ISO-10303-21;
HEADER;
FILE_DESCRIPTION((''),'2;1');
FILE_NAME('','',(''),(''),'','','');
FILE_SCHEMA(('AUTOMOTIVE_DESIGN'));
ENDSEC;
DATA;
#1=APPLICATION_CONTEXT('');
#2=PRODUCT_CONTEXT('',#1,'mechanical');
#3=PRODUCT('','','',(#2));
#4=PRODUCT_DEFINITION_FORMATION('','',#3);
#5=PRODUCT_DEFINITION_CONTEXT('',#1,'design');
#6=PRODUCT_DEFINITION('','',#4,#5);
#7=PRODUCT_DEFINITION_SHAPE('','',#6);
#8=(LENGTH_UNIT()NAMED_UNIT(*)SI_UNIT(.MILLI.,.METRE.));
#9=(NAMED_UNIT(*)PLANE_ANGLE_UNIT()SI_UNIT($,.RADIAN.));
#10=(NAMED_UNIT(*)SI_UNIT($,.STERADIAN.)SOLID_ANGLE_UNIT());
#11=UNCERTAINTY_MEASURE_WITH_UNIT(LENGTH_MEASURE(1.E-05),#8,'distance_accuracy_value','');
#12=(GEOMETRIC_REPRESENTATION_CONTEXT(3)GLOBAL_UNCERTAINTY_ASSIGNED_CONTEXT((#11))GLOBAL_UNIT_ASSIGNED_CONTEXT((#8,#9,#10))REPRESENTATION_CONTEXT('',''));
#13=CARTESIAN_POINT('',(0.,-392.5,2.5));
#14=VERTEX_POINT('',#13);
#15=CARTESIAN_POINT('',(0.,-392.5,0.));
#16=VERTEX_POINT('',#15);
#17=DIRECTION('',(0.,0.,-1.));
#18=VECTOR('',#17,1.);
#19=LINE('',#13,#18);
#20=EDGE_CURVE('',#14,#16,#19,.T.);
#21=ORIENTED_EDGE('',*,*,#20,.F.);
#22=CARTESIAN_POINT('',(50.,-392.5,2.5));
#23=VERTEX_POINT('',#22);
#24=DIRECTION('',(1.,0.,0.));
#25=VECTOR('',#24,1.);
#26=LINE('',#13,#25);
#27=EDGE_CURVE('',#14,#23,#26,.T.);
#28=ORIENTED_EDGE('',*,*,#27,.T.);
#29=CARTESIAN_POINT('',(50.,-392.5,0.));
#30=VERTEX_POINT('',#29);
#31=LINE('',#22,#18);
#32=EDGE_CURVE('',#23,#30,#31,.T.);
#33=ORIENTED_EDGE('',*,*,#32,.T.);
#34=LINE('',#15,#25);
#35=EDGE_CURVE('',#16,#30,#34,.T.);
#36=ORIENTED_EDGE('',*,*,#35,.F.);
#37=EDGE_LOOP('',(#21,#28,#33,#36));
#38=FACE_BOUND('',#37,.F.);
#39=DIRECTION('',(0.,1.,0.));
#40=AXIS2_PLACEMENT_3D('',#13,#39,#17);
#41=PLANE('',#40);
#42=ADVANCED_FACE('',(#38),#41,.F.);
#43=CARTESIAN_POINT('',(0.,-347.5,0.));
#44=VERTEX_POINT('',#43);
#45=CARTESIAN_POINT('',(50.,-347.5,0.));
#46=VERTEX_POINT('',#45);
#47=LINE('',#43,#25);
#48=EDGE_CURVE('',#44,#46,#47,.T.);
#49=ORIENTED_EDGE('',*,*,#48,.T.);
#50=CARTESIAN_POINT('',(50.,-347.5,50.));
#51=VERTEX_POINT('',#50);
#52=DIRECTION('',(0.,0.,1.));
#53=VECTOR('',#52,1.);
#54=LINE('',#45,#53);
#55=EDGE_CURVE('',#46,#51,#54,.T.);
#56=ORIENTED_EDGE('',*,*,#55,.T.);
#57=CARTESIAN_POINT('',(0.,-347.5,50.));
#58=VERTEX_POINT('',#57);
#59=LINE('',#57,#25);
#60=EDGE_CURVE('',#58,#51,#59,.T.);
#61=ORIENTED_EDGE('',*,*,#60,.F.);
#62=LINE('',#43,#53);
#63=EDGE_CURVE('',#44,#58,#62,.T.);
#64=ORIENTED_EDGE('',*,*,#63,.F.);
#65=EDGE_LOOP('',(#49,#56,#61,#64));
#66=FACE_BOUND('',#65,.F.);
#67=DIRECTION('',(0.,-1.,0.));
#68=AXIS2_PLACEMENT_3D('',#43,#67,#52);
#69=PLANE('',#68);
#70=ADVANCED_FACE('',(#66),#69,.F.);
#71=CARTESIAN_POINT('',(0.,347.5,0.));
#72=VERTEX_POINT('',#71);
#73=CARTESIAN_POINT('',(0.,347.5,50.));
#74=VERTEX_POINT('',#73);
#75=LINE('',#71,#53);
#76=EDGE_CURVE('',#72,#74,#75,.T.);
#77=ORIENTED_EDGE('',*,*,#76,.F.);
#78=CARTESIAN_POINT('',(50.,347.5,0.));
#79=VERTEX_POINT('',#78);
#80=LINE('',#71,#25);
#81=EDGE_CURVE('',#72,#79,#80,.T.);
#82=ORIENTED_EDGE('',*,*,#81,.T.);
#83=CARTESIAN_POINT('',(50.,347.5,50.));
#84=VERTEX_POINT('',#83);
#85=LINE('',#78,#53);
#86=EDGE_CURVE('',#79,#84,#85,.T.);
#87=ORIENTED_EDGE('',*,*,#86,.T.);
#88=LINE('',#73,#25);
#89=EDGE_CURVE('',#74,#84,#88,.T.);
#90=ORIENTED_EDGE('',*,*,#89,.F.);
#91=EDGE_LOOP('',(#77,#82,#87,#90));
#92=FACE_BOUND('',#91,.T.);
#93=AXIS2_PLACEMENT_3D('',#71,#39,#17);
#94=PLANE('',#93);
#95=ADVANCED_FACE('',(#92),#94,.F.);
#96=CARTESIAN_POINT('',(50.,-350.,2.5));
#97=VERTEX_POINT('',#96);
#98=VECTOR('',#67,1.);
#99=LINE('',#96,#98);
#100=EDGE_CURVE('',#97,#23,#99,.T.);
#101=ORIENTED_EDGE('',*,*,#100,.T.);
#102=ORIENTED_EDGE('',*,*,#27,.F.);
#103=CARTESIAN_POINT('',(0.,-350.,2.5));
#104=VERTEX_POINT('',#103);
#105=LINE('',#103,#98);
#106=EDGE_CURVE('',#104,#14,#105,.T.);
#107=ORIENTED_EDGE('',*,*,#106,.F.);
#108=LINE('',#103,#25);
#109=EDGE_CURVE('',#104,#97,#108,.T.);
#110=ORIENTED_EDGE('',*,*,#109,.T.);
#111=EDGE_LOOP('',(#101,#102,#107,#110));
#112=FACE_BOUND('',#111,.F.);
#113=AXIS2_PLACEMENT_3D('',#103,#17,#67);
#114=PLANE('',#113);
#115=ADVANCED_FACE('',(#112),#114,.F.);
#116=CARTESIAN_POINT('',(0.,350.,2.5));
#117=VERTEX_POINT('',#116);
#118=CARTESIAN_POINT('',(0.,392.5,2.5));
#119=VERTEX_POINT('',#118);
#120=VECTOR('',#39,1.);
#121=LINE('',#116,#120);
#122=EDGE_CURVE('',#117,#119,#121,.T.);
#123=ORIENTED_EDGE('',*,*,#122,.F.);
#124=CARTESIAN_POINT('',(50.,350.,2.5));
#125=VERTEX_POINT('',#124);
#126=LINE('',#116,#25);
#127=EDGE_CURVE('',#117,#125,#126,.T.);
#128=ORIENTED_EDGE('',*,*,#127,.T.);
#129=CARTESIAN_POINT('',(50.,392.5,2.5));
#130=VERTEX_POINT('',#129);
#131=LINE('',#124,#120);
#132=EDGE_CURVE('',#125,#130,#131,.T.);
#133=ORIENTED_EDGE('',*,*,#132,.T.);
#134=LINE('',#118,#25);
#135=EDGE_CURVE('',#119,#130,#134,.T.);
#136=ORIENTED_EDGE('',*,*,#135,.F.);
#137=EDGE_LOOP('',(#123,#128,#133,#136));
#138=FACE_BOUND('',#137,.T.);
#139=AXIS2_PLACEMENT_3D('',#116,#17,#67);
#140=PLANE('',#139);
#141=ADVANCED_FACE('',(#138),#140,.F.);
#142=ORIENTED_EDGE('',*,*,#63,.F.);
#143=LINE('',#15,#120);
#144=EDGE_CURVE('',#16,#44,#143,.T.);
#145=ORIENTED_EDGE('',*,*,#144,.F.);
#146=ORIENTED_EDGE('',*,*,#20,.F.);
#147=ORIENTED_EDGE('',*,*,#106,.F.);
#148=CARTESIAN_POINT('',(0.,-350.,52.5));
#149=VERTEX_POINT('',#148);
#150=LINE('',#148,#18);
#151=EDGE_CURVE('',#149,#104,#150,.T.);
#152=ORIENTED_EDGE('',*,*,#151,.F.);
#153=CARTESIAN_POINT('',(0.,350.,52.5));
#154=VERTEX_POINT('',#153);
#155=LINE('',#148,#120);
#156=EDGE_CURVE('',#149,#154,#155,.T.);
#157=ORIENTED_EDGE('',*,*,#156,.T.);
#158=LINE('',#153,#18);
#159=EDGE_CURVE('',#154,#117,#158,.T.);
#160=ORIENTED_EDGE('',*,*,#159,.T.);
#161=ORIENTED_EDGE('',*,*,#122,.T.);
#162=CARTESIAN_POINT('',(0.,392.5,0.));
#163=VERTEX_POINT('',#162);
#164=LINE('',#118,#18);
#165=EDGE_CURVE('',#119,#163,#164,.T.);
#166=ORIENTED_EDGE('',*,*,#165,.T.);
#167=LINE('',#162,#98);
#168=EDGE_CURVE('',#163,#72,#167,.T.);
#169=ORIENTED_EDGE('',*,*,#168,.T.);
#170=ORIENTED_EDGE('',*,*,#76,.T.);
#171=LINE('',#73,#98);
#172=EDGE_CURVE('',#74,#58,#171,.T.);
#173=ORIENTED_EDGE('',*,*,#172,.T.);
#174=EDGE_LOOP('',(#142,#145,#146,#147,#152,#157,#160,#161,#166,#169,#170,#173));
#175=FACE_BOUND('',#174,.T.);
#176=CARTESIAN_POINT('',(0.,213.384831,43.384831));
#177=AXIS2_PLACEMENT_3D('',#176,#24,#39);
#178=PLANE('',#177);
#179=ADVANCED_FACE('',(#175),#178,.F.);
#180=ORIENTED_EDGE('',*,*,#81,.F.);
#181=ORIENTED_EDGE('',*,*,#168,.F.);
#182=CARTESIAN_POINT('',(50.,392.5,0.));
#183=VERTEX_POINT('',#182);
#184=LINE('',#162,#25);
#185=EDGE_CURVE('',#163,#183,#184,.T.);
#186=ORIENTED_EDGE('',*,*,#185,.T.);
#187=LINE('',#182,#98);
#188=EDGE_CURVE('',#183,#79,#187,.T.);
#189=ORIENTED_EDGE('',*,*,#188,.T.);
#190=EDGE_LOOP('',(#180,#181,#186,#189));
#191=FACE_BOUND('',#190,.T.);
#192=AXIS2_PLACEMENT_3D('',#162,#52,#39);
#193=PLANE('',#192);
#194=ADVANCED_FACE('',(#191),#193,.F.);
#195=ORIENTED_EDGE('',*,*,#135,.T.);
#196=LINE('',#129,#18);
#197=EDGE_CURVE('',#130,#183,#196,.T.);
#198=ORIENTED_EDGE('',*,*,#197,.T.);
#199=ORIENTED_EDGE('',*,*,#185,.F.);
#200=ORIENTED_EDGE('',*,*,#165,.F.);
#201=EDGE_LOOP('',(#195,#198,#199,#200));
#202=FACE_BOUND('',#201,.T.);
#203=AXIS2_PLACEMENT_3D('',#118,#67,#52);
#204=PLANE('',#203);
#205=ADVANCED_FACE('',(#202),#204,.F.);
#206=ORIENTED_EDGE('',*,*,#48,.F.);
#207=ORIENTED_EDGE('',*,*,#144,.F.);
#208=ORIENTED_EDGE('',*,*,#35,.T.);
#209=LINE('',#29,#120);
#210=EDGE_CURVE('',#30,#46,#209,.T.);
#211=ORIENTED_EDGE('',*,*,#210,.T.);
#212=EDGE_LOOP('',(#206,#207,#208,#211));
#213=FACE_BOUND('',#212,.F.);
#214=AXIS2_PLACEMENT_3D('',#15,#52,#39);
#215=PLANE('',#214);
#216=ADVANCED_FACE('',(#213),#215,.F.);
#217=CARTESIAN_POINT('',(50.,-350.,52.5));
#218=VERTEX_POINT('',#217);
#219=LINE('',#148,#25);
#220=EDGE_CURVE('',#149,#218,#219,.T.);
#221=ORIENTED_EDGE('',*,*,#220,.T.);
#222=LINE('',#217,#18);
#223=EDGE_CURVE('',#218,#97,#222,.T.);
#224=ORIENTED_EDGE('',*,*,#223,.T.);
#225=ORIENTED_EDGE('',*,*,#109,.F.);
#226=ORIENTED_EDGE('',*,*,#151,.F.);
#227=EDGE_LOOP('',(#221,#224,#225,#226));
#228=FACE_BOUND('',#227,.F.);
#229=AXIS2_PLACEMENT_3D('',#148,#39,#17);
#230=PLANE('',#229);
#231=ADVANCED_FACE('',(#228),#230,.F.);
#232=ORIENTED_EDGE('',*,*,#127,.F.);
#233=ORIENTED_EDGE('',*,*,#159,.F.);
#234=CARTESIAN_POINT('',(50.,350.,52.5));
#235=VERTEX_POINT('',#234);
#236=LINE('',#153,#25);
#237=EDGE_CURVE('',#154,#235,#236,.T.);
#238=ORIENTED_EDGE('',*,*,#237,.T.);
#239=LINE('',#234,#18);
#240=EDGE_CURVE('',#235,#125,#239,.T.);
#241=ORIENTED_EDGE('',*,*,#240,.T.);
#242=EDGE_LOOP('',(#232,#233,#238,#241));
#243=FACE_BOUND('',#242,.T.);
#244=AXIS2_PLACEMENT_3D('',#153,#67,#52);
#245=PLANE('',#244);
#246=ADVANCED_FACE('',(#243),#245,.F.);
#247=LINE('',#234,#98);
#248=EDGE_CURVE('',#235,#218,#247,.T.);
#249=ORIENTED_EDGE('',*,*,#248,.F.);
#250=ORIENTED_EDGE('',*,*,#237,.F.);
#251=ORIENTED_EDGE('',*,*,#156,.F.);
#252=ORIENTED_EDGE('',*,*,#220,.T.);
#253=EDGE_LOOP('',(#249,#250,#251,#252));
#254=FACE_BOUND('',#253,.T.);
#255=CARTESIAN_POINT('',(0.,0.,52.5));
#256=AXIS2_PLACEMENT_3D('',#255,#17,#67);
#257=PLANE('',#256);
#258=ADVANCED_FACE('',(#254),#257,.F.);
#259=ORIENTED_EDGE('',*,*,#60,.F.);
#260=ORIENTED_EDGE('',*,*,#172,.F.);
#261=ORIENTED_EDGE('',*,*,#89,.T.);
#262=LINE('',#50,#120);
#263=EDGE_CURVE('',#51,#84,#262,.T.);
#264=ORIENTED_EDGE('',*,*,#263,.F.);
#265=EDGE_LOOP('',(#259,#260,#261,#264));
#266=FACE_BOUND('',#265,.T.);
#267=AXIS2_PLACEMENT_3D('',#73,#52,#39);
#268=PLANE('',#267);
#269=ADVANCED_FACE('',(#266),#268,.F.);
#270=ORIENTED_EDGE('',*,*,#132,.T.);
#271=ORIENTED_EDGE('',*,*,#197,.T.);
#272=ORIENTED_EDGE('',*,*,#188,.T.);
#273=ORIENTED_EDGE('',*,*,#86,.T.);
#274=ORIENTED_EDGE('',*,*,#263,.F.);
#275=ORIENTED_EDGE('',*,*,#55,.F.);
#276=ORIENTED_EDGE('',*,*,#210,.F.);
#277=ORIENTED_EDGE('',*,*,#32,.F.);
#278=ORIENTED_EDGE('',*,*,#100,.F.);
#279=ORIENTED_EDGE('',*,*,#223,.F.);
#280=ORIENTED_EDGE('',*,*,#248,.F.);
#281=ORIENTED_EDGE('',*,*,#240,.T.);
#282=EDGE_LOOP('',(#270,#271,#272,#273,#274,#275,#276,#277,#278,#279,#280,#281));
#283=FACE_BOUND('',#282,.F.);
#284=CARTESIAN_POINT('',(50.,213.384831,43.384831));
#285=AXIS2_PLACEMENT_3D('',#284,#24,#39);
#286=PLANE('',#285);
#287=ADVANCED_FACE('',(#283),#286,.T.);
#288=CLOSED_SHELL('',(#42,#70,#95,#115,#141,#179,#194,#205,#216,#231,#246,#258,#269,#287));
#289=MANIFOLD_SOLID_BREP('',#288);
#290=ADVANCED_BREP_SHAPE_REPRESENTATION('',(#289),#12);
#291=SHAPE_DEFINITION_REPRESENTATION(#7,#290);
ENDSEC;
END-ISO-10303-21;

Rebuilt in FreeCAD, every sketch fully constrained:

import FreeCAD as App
import Part
import Sketcher

doc = App.newDocument("Part")
body = doc.addObject("PartDesign::Body", "Body")

# Sketch on YZ plane
sketch1 = body.newObject("Sketcher::SketchObject", "Sketch")
sketch1.AttachmentSupport = (doc.getObject("YZ_Plane"), [""])
sketch1.MapMode = "FlatFace"
sketch1.addGeometry(Part.LineSegment(App.Vector(-392.5, 2.5, 0), App.Vector(-392.5, 0, 0)), False)
sketch1.addGeometry(Part.LineSegment(App.Vector(-392.5, 0, 0), App.Vector(-347.5, 0, 0)), False)
sketch1.addGeometry(Part.LineSegment(App.Vector(-347.5, 0, 0), App.Vector(-347.5, 50, 0)), False)
sketch1.addGeometry(Part.LineSegment(App.Vector(-347.5, 50, 0), App.Vector(0, 50, 0)), False)
sketch1.addGeometry(Part.LineSegment(App.Vector(0, 50, 0), App.Vector(0, 52.5, 0)), False)
sketch1.addGeometry(Part.LineSegment(App.Vector(0, 52.5, 0), App.Vector(-350, 52.5, 0)), False)
sketch1.addGeometry(Part.LineSegment(App.Vector(-350, 52.5, 0), App.Vector(-350, 2.5, 0)), False)
sketch1.addGeometry(Part.LineSegment(App.Vector(-350, 2.5, 0), App.Vector(-392.5, 2.5, 0)), False)
sketch1.addConstraint(Sketcher.Constraint("Coincident", 0, 2, 1, 1))
sketch1.addConstraint(Sketcher.Constraint("Coincident", 1, 2, 2, 1))
sketch1.addConstraint(Sketcher.Constraint("Coincident", 2, 2, 3, 1))
sketch1.addConstraint(Sketcher.Constraint("Coincident", 3, 2, 4, 1))
sketch1.addConstraint(Sketcher.Constraint("Coincident", 4, 2, 5, 1))
sketch1.addConstraint(Sketcher.Constraint("Coincident", 5, 2, 6, 1))
sketch1.addConstraint(Sketcher.Constraint("Coincident", 6, 2, 7, 1))
sketch1.addConstraint(Sketcher.Constraint("Coincident", 7, 2, 0, 1))
sketch1.addConstraint(Sketcher.Constraint("Vertical", 0))
sketch1.addConstraint(Sketcher.Constraint("Horizontal", 1))
sketch1.addConstraint(Sketcher.Constraint("Vertical", 2))
sketch1.addConstraint(Sketcher.Constraint("Horizontal", 3))
sketch1.addConstraint(Sketcher.Constraint("Vertical", 4))
sketch1.addConstraint(Sketcher.Constraint("Horizontal", 5))
sketch1.addConstraint(Sketcher.Constraint("Vertical", 6))
sketch1.addConstraint(Sketcher.Constraint("Horizontal", 7))
sketch1.addConstraint(Sketcher.Constraint("PointOnObject", 0, 2, -1))
sketch1.addConstraint(Sketcher.Constraint("PointOnObject", 3, 2, -2))
sketch1.addConstraint(Sketcher.Constraint("Equal", 0, 4))
sketch1.addConstraint(Sketcher.Constraint("DistanceX", 1, 1, 1, 2, 45.0))
sketch1.addConstraint(Sketcher.Constraint("DistanceX", 5, 2, 5, 1, 350.0))
sketch1.addConstraint(Sketcher.Constraint("DistanceY", 2, 1, 2, 2, 50.0))
sketch1.addConstraint(Sketcher.Constraint("DistanceX", 3, 1, 3, 2, 347.5))
sketch1.addConstraint(Sketcher.Constraint("DistanceY", 0, 2, 0, 1, 2.5))
pad1 = body.newObject("PartDesign::Pad", "Pad")
pad1.Profile = sketch1
pad1.Length = 50
body2 = doc.addObject("PartDesign::Body", "Body001")
doc.recompute()

body2.BaseFeature = body
doc.recompute()

mirroring = doc.addObject("Part::Mirroring", "Mirroring")
mirroring.Source = body
mirroring.Base = App.Vector(0, 0, 0)
mirroring.Normal = App.Vector(0, -1, 0)
body3 = doc.addObject("PartDesign::Body", "Body002")
body3.BaseFeature = mirroring
boolean = body2.newObject("PartDesign::Boolean", "Boolean")
boolean.Type = "Fuse"
boolean.addObjects([body3])
doc.recompute()
mirroring.Visibility = False

doc.recompute()
